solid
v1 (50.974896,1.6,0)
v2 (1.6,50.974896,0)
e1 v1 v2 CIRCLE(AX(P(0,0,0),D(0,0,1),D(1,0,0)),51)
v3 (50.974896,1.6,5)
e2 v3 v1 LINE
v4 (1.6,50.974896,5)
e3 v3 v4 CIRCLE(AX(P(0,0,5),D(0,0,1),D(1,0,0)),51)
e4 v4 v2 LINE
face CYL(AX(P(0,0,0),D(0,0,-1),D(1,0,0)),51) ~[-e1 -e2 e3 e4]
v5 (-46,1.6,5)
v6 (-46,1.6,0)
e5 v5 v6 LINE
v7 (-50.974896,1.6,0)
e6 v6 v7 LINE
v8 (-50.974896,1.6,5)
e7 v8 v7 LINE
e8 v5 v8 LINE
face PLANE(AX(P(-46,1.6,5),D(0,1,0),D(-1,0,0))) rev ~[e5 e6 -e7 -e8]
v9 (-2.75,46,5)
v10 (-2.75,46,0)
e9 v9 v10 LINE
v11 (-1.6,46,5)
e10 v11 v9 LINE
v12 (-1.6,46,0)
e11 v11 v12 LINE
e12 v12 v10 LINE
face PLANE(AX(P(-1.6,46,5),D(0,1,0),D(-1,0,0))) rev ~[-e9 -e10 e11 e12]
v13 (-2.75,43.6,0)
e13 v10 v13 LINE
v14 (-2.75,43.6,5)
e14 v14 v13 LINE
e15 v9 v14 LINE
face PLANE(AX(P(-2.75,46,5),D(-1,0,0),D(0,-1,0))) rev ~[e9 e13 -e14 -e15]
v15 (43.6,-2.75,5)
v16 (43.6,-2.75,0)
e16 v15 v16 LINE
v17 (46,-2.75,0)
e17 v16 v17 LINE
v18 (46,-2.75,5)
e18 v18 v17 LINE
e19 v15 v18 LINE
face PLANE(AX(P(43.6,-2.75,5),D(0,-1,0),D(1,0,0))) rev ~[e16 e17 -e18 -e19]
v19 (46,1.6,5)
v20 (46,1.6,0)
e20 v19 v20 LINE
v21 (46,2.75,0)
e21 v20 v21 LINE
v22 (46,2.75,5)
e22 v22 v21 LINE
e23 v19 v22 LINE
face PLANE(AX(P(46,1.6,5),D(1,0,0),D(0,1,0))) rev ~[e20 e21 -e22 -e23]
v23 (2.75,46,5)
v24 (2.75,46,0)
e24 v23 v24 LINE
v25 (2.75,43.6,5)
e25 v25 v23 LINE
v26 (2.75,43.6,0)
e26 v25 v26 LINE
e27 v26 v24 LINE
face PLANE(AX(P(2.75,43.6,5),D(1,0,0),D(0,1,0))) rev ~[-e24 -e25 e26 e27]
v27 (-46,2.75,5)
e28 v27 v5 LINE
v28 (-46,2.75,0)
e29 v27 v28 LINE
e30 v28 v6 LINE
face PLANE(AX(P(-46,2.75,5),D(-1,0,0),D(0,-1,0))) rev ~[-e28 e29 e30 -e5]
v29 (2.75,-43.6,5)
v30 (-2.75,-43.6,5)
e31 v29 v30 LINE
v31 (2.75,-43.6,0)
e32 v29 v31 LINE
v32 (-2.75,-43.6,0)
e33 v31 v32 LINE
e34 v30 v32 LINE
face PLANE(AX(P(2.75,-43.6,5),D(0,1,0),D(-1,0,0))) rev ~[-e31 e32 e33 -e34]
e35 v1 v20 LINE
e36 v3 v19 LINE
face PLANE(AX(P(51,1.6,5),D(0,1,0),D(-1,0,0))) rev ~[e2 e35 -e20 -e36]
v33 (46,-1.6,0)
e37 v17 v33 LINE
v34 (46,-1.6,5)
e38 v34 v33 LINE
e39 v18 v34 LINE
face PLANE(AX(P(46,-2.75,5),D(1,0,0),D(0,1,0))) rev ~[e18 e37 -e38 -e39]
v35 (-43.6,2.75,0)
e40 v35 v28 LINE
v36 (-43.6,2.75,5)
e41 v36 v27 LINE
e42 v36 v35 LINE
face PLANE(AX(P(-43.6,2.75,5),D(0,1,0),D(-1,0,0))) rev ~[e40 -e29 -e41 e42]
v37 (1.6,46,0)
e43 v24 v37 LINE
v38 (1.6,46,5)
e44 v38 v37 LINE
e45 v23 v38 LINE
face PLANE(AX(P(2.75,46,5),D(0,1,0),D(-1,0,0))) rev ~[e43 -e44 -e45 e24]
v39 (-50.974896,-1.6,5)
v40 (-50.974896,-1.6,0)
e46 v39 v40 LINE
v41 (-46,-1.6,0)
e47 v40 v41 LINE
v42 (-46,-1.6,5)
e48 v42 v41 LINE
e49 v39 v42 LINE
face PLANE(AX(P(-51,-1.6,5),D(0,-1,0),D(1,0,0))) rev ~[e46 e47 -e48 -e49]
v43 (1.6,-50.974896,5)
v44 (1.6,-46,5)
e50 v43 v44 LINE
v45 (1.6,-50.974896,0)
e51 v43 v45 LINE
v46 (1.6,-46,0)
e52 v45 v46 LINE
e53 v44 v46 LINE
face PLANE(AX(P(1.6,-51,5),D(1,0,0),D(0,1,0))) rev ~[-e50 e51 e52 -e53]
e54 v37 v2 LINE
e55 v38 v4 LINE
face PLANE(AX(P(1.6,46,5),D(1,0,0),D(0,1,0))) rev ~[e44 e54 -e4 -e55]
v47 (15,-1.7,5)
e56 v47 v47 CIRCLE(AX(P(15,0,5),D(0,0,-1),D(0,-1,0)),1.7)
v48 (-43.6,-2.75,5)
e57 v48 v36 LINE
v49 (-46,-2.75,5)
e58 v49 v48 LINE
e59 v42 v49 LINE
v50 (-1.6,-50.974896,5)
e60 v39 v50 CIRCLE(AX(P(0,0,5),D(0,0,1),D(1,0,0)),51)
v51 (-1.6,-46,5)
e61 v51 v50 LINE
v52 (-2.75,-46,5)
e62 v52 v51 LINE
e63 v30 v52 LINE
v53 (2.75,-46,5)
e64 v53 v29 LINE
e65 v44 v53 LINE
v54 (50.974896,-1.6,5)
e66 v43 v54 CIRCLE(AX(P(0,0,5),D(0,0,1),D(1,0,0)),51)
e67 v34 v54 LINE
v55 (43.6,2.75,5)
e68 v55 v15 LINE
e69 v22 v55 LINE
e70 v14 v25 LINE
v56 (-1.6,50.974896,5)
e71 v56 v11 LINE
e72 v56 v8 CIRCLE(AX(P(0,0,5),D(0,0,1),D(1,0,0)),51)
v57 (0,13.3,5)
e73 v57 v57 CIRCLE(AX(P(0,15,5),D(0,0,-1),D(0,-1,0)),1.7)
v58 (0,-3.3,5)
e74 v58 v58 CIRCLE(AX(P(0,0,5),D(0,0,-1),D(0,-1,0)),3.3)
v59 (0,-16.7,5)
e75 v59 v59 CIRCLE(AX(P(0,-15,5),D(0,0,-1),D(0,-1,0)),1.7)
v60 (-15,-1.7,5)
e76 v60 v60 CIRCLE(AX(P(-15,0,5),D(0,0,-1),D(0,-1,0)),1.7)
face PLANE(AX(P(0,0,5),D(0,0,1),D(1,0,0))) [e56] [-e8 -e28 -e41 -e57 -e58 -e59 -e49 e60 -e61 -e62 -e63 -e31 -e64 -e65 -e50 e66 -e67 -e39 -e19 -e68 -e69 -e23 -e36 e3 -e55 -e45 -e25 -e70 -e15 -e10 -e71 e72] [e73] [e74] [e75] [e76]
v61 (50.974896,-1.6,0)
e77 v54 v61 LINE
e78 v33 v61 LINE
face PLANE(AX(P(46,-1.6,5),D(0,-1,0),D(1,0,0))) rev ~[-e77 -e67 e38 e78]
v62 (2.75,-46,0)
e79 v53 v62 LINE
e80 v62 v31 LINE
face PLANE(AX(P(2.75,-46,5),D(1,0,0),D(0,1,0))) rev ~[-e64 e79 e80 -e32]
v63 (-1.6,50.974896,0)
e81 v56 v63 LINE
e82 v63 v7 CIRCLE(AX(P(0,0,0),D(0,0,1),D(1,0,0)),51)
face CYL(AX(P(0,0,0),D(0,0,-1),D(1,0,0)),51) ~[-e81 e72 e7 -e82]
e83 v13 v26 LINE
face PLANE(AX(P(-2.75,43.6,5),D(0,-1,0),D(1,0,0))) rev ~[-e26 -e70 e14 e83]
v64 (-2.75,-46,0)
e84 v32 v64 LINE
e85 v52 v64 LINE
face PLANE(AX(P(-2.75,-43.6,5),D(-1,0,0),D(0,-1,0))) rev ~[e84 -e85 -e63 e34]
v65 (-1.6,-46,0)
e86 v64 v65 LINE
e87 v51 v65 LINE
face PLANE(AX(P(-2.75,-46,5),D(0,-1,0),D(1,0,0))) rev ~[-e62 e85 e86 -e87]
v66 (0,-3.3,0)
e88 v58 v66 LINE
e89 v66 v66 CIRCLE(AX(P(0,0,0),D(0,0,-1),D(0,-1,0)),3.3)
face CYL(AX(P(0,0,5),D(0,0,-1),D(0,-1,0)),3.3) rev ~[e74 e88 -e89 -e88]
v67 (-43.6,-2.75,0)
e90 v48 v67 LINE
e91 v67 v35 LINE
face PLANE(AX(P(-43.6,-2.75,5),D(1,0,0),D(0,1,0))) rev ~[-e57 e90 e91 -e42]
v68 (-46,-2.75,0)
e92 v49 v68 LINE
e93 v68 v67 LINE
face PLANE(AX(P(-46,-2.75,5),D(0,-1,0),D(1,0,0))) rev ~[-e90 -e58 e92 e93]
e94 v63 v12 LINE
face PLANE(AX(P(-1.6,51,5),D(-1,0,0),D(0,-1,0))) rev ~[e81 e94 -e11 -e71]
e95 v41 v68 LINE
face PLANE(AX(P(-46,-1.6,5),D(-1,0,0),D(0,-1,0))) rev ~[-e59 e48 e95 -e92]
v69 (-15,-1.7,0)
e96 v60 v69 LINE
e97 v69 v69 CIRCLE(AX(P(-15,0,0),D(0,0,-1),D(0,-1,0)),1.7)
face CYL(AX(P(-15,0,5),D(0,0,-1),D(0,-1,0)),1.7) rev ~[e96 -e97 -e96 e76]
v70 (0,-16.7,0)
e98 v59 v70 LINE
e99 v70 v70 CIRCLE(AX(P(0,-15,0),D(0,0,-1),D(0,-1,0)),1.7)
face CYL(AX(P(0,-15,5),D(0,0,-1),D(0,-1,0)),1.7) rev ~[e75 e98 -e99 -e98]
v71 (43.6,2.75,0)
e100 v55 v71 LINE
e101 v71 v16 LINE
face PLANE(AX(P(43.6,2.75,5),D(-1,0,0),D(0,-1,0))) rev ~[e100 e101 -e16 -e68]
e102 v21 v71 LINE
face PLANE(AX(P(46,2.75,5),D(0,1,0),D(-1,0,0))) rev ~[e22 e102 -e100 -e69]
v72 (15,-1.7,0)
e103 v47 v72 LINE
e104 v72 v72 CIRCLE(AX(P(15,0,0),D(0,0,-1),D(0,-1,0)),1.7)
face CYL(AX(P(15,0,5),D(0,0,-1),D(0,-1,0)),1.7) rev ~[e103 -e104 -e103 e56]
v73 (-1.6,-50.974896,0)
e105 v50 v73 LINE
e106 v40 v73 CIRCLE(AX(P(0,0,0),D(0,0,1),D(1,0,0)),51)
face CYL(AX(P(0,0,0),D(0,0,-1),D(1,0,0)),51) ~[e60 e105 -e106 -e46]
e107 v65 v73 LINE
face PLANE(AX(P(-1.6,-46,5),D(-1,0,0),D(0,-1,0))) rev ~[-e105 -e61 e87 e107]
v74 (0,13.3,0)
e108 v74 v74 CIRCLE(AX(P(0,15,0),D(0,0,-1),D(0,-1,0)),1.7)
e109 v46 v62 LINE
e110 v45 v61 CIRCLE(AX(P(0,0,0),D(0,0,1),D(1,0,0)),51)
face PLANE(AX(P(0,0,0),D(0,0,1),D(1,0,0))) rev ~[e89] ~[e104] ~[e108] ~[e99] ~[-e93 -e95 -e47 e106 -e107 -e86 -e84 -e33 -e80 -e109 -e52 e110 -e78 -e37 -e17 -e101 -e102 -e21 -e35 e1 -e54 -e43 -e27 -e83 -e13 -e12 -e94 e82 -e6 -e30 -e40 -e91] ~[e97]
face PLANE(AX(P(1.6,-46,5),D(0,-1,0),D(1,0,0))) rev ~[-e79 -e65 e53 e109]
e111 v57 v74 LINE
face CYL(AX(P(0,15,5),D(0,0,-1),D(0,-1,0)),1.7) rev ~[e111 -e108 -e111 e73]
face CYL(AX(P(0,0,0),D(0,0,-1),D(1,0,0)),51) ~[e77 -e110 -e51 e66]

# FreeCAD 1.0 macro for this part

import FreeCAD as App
import Part
import Sketcher
from FreeCAD import Vector

doc = App.newDocument("Part")
params = doc.addObject("Spreadsheet::Sheet", "Params")
for row, (alias, value) in enumerate([
    ("sketch1_diameter", "102 mm"),
    ("pad1_length", "5 mm"),
    ("sketch2_diameter", "6.6 mm"),
    ("hole_diameter", "6.6 mm"),
    ("hole_depth", "8 mm"),
    ("sketch3_diameter", "3.4 mm"),
    ("hole2_diameter", "3.4 mm"),
    ("hole2_depth", "8 mm"),
    ("sketch4_width", "5 mm"),
    ("sketch4_width2", "2.4 mm"),
    ("sketch4_width3", "3.2 mm"),
    ("sketch4_width4", "5.5 mm"),
], start=1):
    params.set(f"A{row}", alias)
    params.set(f"B{row}", "=" + value)
    params.setAlias(f"B{row}", alias)

body = doc.addObject("PartDesign::Body", "Body")

sketch1 = doc.addObject("Sketcher::SketchObject", "Sketch")
body.addObject(sketch1)
sketch1.AttachmentSupport = (doc.XY_Plane, [""])
sketch1.MapMode = "FlatFace"
sketch1.addGeometry(Part.Circle(Vector(0, 0, 0), Vector(0, 0, 1), 51), False)
sketch1.addConstraint([
    Sketcher.Constraint("Coincident", 0, 3, -1, 1),
    Sketcher.Constraint("Diameter", 0, 102.0),
])
sketch1.setExpression("Constraints[1]", "Params.sketch1_diameter")
pad1 = doc.addObject("PartDesign::Pad", "Pad")
body.addObject(pad1)
pad1.Profile = sketch1
pad1.setExpression("Length", "Params.pad1_length")

sketch2 = doc.addObject("Sketcher::SketchObject", "Sketch001")
body.addObject(sketch2)
sketch2.AttachmentSupport = (doc.XY_Plane, [""])
sketch2.MapMode = "FlatFace"
sketch2.AttachmentOffset = App.Placement(Vector(0, 0, 5), App.Rotation())
sketch2.addGeometry(Part.Circle(Vector(0, 0, 0), Vector(0, 0, 1), 3.3), False)
sketch2.addConstraint([
    Sketcher.Constraint("Coincident", 0, 3, -1, 1),
    Sketcher.Constraint("Diameter", 0, 6.6),
])
sketch2.setExpression("Constraints[1]", "Params.sketch2_diameter")
doc.recompute()
hole = doc.addObject("PartDesign::Hole", "Hole")
body.addObject(hole)
hole.Profile = sketch2
hole.ThreadType = "None"
hole.setExpression("Diameter", "Params.hole_diameter")
hole.DepthType = "Dimension"
hole.setExpression("Depth", "Params.hole_depth")
hole.DrillPoint = "Angled"
hole.DrillPointAngle = 118

sketch3 = doc.addObject("Sketcher::SketchObject", "Sketch002")
body.addObject(sketch3)
sketch3.AttachmentSupport = (doc.XY_Plane, [""])
sketch3.MapMode = "FlatFace"
sketch3.AttachmentOffset = App.Placement(Vector(0, 0, 5), App.Rotation())
sketch3.addGeometry([
    Part.Circle(Vector(-15, 0, 0), Vector(0, 0, 1), 1.7),
    Part.Circle(Vector(0, 15, 0), Vector(0, 0, 1), 1.7),
    Part.Circle(Vector(15, 0, 0), Vector(0, 0, 1), 1.7),
    Part.Circle(Vector(0, -15, 0), Vector(0, 0, 1), 1.7),
], False)
sketch3.addConstraint([
    Sketcher.Constraint("Equal", 0, 1),
    Sketcher.Constraint("Equal", 1, 2),
    Sketcher.Constraint("Equal", 2, 3),
    Sketcher.Constraint("Symmetric", 0, 3, 2, 3, -1, 1),
    Sketcher.Constraint("Symmetric", 1, 3, 3, 3, -1, 1),
    Sketcher.Constraint("PointOnObject", 0, 3, -1),
    Sketcher.Constraint("PointOnObject", 1, 3, -2),
    Sketcher.Constraint("Diameter", 0, 3.4),
    Sketcher.Constraint("DistanceX", 0, 3, -1, 1, 15.0),
    Sketcher.Constraint("DistanceY", -1, 1, 1, 3, 15.0),
])
sketch3.setExpression("Constraints[7]", "Params.sketch3_diameter")
doc.recompute()
hole2 = doc.addObject("PartDesign::Hole", "Hole001")
body.addObject(hole2)
hole2.Profile = sketch3
hole2.ThreadType = "None"
hole2.setExpression("Diameter", "Params.hole2_diameter")
hole2.DepthType = "Dimension"
hole2.setExpression("Depth", "Params.hole2_depth")
hole2.DrillPoint = "Angled"
hole2.DrillPointAngle = 118

sketch4 = doc.addObject("Sketcher::SketchObject", "Sketch003")
body.addObject(sketch4)
sketch4.AttachmentSupport = (doc.XY_Plane, [""])
sketch4.MapMode = "FlatFace"
sketch4.AttachmentOffset = App.Placement(Vector(0, 0, 5), App.Rotation())
sketch4.addGeometry([
    Part.LineSegment(Vector(-46, 1.6, 0), Vector(-51, 1.6, 0)),
    Part.LineSegment(Vector(-51, 1.6, 0), Vector(-51, -1.6, 0)),
    Part.LineSegment(Vector(-51, -1.6, 0), Vector(-46, -1.6, 0)),
    Part.LineSegment(Vector(-46, -1.6, 0), Vector(-46, -2.75, 0)),
    Part.LineSegment(Vector(-46, -2.75, 0), Vector(-43.6, -2.75, 0)),
    Part.LineSegment(Vector(-43.6, -2.75, 0), Vector(-43.6, 2.75, 0)),
    Part.LineSegment(Vector(-43.6, 2.75, 0), Vector(-46, 2.75, 0)),
    Part.LineSegment(Vector(-46, 2.75, 0), Vector(-46, 1.6, 0)),
    Part.LineSegment(Vector(-1.6, -46, 0), Vector(-1.6, -51, 0)),
    Part.LineSegment(Vector(-1.6, -51, 0), Vector(1.6, -51, 0)),
    Part.LineSegment(Vector(1.6, -51, 0), Vector(1.6, -46, 0)),
    Part.LineSegment(Vector(1.6, -46, 0), Vector(2.75, -46, 0)),
    Part.LineSegment(Vector(2.75, -46, 0), Vector(2.75, -43.6, 0)),
    Part.LineSegment(Vector(2.75, -43.6, 0), Vector(-2.75, -43.6, 0)),
    Part.LineSegment(Vector(-2.75, -43.6, 0), Vector(-2.75, -46, 0)),
    Part.LineSegment(Vector(-2.75, -46, 0), Vector(-1.6, -46, 0)),
    Part.LineSegment(Vector(46, -1.6, 0), Vector(51, -1.6, 0)),
    Part.LineSegment(Vector(51, -1.6, 0), Vector(51, 1.6, 0)),
    Part.LineSegment(Vector(51, 1.6, 0), Vector(46, 1.6, 0)),
    Part.LineSegment(Vector(46, 1.6, 0), Vector(46, 2.75, 0)),
    Part.LineSegment(Vector(46, 2.75, 0), Vector(43.6, 2.75, 0)),
    Part.LineSegment(Vector(43.6, 2.75, 0), Vector(43.6, -2.75, 0)),
    Part.LineSegment(Vector(43.6, -2.75, 0), Vector(46, -2.75, 0)),
    Part.LineSegment(Vector(46, -2.75, 0), Vector(46, -1.6, 0)),
    Part.LineSegment(Vector(1.6, 46, 0), Vector(1.6, 51, 0)),
    Part.LineSegment(Vector(1.6, 51, 0), Vector(-1.6, 51, 0)),
    Part.LineSegment(Vector(-1.6, 51, 0), Vector(-1.6, 46, 0)),
    Part.LineSegment(Vector(-1.6, 46, 0), Vector(-2.75, 46, 0)),
    Part.LineSegment(Vector(-2.75, 46, 0), Vector(-2.75, 43.6, 0)),
    Part.LineSegment(Vector(-2.75, 43.6, 0), Vector(2.75, 43.6, 0)),
    Part.LineSegment(Vector(2.75, 43.6, 0), Vector(2.75, 46, 0)),
    Part.LineSegment(Vector(2.75, 46, 0), Vector(1.6, 46, 0)),
], False)
sketch4.addConstraint([
    Sketcher.Constraint("Coincident", 0, 2, 1, 1),
    Sketcher.Constraint("Coincident", 1, 2, 2, 1),
    Sketcher.Constraint("Coincident", 2, 2, 3, 1),
    Sketcher.Constraint("Coincident", 3, 2, 4, 1),
    Sketcher.Constraint("Coincident", 4, 2, 5, 1),
    Sketcher.Constraint("Coincident", 5, 2, 6, 1),
    Sketcher.Constraint("Coincident", 6, 2, 7, 1),
    Sketcher.Constraint("Coincident", 7, 2, 0, 1),
    Sketcher.Constraint("Coincident", 8, 2, 9, 1),
    Sketcher.Constraint("Coincident", 9, 2, 10, 1),
    Sketcher.Constraint("Coincident", 10, 2, 11, 1),
    Sketcher.Constraint("Coincident", 11, 2, 12, 1),
    Sketcher.Constraint("Coincident", 12, 2, 13, 1),
    Sketcher.Constraint("Coincident", 13, 2, 14, 1),
    Sketcher.Constraint("Coincident", 14, 2, 15, 1),
    Sketcher.Constraint("Coincident", 15, 2, 8, 1),
    Sketcher.Constraint("Coincident", 16, 2, 17, 1),
    Sketcher.Constraint("Coincident", 17, 2, 18, 1),
    Sketcher.Constraint("Coincident", 18, 2, 19, 1),
    Sketcher.Constraint("Coincident", 19, 2, 20, 1),
    Sketcher.Constraint("Coincident", 20, 2, 21, 1),
    Sketcher.Constraint("Coincident", 21, 2, 22, 1),
    Sketcher.Constraint("Coincident", 22, 2, 23, 1),
    Sketcher.Constraint("Coincident", 23, 2, 16, 1),
    Sketcher.Constraint("Coincident", 24, 2, 25, 1),
    Sketcher.Constraint("Coincident", 25, 2, 26, 1),
    Sketcher.Constraint("Coincident", 26, 2, 27, 1),
    Sketcher.Constraint("Coincident", 27, 2, 28, 1),
    Sketcher.Constraint("Coincident", 28, 2, 29, 1),
    Sketcher.Constraint("Coincident", 29, 2, 30, 1),
    Sketcher.Constraint("Coincident", 30, 2, 31, 1),
    Sketcher.Constraint("Coincident", 31, 2, 24, 1),
    Sketcher.Constraint("Horizontal", 0),
    Sketcher.Constraint("Vertical", 1),
    Sketcher.Constraint("Horizontal", 2),
    Sketcher.Constraint("Vertical", 3),
    Sketcher.Constraint("Horizontal", 4),
    Sketcher.Constraint("Vertical", 5),
    Sketcher.Constraint("Horizontal", 6),
    Sketcher.Constraint("Vertical", 7),
    Sketcher.Constraint("Vertical", 8),
    Sketcher.Constraint("Horizontal", 9),
    Sketcher.Constraint("Vertical", 10),
    Sketcher.Constraint("Horizontal", 11),
    Sketcher.Constraint("Vertical", 12),
    Sketcher.Constraint("Horizontal", 13),
    Sketcher.Constraint("Vertical", 14),
    Sketcher.Constraint("Horizontal", 15),
    Sketcher.Constraint("Horizontal", 16),
    Sketcher.Constraint("Vertical", 17),
    Sketcher.Constraint("Horizontal", 18),
    Sketcher.Constraint("Vertical", 19),
    Sketcher.Constraint("Horizontal", 20),
    Sketcher.Constraint("Vertical", 21),
    Sketcher.Constraint("Horizontal", 22),
    Sketcher.Constraint("Vertical", 23),
    Sketcher.Constraint("Vertical", 24),
    Sketcher.Constraint("Horizontal", 25),
    Sketcher.Constraint("Vertical", 26),
    Sketcher.Constraint("Horizontal", 27),
    Sketcher.Constraint("Vertical", 28),
    Sketcher.Constraint("Horizontal", 29),
    Sketcher.Constraint("Vertical", 30),
    Sketcher.Constraint("Horizontal", 31),
    Sketcher.Constraint("Symmetric", 0, 2, 16, 2, -1, 1),
    Sketcher.Constraint("Symmetric", 2, 2, 18, 2, -1, 1),
    Sketcher.Constraint("Symmetric", 4, 2, 20, 2, -1, 1),
    Sketcher.Constraint("Symmetric", 6, 2, 22, 2, -1, 1),
    Sketcher.Constraint("Symmetric", 8, 2, 24, 2, -1, 1),
    Sketcher.Constraint("Symmetric", 10, 2, 26, 2, -1, 1),
    Sketcher.Constraint("Symmetric", 12, 2, 28, 2, -1, 1),
    Sketcher.Constraint("Symmetric", 14, 2, 30, 2, -1, 1),
    Sketcher.Constraint("Symmetric", 11, 2, 14, 2, -2),
    Sketcher.Constraint("Symmetric", 7, 2, 18, 2, -2),
    Sketcher.Constraint("Horizontal", 6, 2, 19, 2),
    Sketcher.Constraint("Vertical", 10, 2, 24, 2),
    Sketcher.Constraint("Equal", 25, 1),
    Sketcher.Constraint("Equal", 31, 3),
    Sketcher.Constraint("Equal", 18, 8),
    Sketcher.Constraint("Equal", 22, 12),
    Sketcher.Constraint("DistanceX", 0, 2, 0, 1, 5.0),
    Sketcher.Constraint("DistanceX", 4, 1, 4, 2, 2.4),
    Sketcher.Constraint("DistanceX", 9, 1, 9, 2, 3.2),
    Sketcher.Constraint("DistanceX", 13, 2, 13, 1, 5.5),
    Sketcher.Constraint("DistanceX", 0, 2, -1, 1, 51.0),
    Sketcher.Constraint("DistanceY", 8, 2, -1, 1, 51.0),
])
sketch4.setExpression("Constraints[80]", "Params.sketch4_width")
sketch4.setExpression("Constraints[81]", "Params.sketch4_width2")
sketch4.setExpression("Constraints[82]", "Params.sketch4_width3")
sketch4.setExpression("Constraints[83]", "Params.sketch4_width4")
pocket1 = doc.addObject("PartDesign::Pocket", "Pocket")
body.addObject(pocket1)
pocket1.Profile = sketch4
pocket1.Type = "ThroughAll"

doc.recompute()
